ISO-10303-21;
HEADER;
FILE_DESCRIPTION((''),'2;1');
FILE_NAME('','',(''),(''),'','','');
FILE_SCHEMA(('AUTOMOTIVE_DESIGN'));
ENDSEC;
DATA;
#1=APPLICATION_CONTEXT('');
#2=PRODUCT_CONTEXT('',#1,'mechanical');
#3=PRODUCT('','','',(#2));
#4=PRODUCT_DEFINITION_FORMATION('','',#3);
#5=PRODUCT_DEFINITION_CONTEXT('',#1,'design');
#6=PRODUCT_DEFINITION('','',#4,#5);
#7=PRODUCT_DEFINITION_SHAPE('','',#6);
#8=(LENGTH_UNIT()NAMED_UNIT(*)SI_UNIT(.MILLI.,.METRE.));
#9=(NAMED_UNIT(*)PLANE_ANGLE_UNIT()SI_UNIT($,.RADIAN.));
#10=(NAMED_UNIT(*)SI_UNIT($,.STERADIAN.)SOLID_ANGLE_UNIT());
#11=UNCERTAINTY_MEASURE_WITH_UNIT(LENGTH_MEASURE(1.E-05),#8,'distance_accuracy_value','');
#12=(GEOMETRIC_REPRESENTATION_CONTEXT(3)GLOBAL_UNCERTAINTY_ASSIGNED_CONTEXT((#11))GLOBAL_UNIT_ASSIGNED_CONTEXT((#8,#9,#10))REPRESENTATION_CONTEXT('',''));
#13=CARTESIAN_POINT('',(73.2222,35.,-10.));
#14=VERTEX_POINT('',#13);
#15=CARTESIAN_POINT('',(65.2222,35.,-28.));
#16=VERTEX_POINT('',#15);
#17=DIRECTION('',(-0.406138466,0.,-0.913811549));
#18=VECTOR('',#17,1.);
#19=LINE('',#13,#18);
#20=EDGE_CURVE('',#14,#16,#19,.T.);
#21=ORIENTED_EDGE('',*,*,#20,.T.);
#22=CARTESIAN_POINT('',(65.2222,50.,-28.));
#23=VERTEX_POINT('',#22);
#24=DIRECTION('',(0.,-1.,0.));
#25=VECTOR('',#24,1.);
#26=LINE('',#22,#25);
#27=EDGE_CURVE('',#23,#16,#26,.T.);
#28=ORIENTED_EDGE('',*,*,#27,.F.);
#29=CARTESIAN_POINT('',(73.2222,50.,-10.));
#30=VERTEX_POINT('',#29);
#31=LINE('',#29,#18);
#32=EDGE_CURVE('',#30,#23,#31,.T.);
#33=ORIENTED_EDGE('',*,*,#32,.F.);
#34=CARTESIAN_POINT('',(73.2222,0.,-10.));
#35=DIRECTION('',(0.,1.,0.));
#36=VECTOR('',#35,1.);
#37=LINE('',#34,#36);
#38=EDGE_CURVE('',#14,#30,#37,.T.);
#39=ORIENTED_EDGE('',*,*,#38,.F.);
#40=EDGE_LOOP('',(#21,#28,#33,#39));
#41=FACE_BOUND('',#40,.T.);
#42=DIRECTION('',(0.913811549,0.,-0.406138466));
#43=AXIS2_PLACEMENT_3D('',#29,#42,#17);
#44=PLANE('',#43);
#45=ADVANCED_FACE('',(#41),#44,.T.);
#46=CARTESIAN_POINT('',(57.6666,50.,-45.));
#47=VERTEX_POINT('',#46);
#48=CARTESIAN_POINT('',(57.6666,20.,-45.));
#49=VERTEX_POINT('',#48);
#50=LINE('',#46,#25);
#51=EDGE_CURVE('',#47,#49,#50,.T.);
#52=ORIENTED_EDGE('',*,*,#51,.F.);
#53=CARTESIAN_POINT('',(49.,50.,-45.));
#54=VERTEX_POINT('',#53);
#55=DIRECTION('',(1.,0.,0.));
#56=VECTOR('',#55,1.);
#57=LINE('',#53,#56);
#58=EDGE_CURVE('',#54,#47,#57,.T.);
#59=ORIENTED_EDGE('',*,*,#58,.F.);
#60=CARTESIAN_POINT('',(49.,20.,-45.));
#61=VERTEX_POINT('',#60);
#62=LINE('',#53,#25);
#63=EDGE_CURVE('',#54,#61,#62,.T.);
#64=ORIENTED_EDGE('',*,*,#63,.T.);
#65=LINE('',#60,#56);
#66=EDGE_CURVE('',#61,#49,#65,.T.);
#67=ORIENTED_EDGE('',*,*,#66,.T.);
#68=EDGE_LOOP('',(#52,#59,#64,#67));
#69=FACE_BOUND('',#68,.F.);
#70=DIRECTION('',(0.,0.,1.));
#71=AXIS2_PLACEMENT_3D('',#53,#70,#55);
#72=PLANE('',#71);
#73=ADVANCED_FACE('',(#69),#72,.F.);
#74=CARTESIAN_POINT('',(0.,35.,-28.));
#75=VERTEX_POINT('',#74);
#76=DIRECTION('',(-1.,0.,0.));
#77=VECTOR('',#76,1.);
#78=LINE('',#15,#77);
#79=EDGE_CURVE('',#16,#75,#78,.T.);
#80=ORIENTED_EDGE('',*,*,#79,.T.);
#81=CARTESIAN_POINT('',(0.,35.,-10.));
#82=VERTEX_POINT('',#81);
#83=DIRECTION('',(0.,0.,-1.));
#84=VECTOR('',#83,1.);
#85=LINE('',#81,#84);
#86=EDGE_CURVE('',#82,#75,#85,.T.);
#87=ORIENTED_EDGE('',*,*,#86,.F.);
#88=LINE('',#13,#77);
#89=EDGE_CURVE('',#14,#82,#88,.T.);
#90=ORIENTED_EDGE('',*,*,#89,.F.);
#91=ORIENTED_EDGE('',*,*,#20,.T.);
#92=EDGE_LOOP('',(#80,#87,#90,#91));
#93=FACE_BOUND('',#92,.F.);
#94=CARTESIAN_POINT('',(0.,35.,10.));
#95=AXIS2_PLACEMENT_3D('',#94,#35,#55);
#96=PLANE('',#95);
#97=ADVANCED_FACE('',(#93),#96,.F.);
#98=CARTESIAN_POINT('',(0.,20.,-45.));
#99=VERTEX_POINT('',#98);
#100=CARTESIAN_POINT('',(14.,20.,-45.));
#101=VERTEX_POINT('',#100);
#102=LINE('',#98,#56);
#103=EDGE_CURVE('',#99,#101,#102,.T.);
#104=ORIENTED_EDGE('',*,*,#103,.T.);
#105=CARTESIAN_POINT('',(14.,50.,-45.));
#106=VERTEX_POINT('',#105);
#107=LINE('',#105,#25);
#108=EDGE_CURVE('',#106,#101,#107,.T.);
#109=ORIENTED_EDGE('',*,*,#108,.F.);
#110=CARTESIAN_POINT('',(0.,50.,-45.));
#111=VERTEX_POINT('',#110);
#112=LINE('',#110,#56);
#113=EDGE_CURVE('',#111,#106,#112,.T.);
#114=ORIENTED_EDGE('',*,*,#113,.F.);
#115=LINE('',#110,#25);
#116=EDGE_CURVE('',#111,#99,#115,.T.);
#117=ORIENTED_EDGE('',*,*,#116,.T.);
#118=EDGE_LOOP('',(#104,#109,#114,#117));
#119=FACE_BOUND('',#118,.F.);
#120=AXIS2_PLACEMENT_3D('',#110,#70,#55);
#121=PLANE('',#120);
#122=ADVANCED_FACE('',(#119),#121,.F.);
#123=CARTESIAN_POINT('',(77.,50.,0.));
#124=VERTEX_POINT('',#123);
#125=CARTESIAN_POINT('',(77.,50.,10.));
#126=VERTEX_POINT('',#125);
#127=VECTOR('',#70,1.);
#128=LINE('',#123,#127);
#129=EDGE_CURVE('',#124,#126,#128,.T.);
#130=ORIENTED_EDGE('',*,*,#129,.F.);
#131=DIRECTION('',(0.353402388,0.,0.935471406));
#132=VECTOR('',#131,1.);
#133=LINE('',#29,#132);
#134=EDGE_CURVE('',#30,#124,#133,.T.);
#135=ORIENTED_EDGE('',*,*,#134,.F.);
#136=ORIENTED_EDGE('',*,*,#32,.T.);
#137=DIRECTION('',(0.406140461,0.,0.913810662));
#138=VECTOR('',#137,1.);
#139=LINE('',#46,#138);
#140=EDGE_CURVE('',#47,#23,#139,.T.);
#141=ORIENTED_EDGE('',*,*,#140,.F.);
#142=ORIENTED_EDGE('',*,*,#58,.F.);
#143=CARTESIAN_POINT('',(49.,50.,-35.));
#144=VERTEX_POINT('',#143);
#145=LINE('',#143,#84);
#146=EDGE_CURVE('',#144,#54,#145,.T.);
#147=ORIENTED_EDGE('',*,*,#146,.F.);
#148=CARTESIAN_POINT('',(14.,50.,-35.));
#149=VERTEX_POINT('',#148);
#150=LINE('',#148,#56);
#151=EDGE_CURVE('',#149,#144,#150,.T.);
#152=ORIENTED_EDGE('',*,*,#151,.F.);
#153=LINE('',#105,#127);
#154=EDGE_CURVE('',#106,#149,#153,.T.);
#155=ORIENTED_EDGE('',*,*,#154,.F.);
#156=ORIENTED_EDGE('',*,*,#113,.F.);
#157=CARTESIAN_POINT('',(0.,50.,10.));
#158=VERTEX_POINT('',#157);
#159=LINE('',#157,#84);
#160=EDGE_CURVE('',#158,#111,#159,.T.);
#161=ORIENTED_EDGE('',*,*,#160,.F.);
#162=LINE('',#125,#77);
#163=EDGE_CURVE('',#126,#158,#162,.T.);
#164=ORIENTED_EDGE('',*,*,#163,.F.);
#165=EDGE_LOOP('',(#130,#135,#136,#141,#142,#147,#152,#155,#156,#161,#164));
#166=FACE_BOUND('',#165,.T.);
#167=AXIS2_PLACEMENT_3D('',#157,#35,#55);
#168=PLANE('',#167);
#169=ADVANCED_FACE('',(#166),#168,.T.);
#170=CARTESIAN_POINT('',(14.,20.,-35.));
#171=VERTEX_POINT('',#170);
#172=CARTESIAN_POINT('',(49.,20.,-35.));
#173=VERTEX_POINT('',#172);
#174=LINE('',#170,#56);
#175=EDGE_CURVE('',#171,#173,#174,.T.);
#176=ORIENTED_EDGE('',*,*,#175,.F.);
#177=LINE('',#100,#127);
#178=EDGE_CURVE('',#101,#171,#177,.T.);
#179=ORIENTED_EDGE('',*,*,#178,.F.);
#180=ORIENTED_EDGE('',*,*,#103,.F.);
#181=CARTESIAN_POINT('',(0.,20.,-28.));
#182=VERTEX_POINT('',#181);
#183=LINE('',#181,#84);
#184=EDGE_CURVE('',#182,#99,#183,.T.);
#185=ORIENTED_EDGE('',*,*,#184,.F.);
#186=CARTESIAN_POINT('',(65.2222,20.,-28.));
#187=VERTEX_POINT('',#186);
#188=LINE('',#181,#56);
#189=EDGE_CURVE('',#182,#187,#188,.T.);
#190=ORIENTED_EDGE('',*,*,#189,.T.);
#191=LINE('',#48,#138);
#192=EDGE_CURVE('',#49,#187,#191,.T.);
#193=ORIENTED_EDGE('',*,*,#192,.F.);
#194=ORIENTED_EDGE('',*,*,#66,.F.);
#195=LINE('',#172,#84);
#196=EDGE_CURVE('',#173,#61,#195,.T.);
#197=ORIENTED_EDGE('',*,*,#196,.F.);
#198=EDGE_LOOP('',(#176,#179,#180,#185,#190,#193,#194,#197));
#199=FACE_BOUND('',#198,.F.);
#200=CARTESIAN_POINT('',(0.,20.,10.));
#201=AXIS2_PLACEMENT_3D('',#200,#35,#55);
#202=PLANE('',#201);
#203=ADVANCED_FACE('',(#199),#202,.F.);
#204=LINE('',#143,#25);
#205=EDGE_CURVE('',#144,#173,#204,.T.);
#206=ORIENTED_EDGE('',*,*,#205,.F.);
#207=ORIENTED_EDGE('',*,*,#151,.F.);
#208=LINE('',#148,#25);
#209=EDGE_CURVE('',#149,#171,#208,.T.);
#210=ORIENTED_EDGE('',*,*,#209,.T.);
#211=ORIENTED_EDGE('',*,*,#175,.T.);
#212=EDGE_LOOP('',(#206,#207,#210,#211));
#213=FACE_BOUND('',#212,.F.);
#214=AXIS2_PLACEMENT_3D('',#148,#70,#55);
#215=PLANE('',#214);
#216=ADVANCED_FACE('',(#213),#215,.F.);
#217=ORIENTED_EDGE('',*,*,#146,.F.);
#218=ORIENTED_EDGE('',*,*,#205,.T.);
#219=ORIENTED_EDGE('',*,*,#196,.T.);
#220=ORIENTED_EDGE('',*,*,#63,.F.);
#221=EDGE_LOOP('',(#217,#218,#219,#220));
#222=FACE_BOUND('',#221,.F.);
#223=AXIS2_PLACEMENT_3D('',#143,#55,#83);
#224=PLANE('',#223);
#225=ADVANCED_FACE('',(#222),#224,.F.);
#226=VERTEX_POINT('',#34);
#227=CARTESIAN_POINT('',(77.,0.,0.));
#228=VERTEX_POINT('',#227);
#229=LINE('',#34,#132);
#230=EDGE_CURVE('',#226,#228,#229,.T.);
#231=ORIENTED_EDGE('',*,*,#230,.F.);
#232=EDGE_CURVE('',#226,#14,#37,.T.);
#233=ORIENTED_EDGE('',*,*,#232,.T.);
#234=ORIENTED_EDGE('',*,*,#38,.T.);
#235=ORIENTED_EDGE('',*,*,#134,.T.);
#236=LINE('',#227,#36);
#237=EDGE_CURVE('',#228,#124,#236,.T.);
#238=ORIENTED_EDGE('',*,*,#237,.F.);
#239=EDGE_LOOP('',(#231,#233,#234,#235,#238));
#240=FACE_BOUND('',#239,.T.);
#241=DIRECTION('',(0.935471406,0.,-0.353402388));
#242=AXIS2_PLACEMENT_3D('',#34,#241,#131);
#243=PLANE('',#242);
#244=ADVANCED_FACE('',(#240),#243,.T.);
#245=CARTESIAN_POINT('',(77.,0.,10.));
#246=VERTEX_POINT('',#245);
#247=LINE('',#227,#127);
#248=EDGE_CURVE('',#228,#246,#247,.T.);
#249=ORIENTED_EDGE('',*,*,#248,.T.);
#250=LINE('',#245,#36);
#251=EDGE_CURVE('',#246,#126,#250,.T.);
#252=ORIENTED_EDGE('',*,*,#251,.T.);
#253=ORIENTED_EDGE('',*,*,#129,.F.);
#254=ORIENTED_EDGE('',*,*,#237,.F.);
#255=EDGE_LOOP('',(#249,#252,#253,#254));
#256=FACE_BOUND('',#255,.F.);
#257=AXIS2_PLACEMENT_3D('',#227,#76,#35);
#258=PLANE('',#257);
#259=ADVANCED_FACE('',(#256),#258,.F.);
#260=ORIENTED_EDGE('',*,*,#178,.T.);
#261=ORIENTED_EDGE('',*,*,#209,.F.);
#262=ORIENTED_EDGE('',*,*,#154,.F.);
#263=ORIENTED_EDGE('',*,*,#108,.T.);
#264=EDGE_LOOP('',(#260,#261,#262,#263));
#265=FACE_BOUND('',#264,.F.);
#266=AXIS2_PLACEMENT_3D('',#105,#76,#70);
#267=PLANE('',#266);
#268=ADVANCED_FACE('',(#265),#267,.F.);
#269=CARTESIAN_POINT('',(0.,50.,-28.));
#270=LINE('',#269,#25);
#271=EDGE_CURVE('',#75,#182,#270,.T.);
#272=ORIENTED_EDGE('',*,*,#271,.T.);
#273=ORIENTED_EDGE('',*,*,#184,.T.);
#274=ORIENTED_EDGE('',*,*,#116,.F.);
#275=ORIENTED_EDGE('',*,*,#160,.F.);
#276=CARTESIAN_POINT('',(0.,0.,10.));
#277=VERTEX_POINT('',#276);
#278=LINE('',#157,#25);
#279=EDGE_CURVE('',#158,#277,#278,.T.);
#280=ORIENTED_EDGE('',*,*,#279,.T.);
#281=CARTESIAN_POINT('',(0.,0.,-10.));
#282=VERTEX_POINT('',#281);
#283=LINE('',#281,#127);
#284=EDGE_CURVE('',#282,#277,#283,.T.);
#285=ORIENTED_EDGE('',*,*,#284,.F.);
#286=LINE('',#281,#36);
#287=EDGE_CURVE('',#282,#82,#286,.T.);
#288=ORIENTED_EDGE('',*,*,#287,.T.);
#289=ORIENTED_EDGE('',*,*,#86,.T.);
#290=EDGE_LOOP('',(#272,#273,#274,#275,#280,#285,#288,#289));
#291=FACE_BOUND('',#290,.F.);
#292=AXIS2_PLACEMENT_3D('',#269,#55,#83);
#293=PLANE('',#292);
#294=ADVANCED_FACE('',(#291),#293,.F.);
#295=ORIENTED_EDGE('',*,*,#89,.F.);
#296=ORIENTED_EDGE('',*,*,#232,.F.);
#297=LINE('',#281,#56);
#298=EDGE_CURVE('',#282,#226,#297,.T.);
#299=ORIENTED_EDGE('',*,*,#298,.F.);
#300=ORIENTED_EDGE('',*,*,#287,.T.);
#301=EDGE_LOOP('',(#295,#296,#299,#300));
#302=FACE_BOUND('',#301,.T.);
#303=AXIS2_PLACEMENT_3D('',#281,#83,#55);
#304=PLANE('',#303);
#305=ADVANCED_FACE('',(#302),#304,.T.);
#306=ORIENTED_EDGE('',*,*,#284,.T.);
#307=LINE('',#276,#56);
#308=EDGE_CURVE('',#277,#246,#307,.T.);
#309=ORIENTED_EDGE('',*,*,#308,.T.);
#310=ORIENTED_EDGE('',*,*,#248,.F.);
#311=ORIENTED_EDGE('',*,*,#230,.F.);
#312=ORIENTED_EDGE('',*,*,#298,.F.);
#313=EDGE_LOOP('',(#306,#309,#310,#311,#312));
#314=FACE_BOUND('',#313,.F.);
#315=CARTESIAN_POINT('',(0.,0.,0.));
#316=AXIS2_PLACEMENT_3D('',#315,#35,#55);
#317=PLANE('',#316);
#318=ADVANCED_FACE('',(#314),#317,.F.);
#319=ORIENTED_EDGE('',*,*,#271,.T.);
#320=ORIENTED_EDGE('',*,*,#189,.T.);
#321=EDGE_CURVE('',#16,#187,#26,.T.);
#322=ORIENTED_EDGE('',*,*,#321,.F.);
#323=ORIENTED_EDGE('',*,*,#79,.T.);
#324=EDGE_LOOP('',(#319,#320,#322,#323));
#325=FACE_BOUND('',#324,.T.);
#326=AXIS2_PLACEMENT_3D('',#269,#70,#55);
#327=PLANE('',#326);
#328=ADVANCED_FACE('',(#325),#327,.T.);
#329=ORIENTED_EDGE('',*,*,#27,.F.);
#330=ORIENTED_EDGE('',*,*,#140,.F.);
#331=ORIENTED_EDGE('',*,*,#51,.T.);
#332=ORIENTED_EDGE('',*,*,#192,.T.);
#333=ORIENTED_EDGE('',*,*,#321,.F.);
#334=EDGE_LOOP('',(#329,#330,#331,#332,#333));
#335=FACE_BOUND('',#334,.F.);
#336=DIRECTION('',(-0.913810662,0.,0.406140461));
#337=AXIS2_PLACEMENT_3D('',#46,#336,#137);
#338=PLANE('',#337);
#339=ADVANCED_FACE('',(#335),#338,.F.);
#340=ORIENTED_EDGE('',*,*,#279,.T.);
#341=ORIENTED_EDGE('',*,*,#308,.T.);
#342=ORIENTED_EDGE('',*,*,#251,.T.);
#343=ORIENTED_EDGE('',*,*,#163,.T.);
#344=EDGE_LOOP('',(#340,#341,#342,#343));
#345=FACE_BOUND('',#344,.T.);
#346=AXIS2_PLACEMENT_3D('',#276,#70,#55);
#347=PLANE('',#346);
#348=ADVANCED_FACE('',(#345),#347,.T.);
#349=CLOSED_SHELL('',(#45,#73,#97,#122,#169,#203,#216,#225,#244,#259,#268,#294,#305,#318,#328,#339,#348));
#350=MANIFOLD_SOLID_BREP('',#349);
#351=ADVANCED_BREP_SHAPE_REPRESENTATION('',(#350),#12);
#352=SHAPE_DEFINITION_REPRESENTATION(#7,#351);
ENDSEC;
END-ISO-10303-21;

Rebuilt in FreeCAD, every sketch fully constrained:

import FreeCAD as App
import Part
import Sketcher
Q = App.Units.Quantity


def add_polygon(sketch, points):
    """Adds a closed chain of lines whose ends are joined by coincident constraints."""
    first, n = sketch.GeometryCount, len(points)
    for a, b in zip(points, points[1:] + points[:1]):
        sketch.addGeometry(Part.LineSegment(App.Vector(*a, 0), App.Vector(*b, 0)), False)
    for i in range(n):
        sketch.addConstraint(Sketcher.Constraint("Coincident", first + i, 2, first + (i + 1) % n, 1))

doc = App.newDocument("Part")
body = doc.addObject("PartDesign::Body", "Body")

# Sketch on XY plane
sketch1 = body.newObject("Sketcher::SketchObject", "Sketch")
sketch1.AttachmentSupport = (doc.getObject("XY_Plane"), [""])
sketch1.MapMode = "FlatFace"
add_polygon(sketch1, [(0, 50), (0, 0), (77, 0), (77, 50)])  # lines 0-3
sketch1.addConstraint([
    Sketcher.Constraint("Vertical", 0),
    Sketcher.Constraint("Horizontal", 1),
    Sketcher.Constraint("Vertical", 2),
    Sketcher.Constraint("Horizontal", 3),
    Sketcher.Constraint("Coincident", 0, 2, -1, 1),
    Sketcher.Constraint("DistanceX", 1, 1, 1, 2, Q("77 mm")),
    Sketcher.Constraint("DistanceY", 0, 2, 0, 1, Q("50 mm")),
])
pad1 = body.newObject("PartDesign::Pad", "Pad")
pad1.Profile = sketch1
pad1.Length = 10

# Sketch on XZ plane
sketch2 = body.newObject("Sketcher::SketchObject", "Sketch001")
sketch2.AttachmentSupport = (doc.getObject("XZ_Plane"), [""])
sketch2.MapMode = "FlatFace"
add_polygon(sketch2, [(73.2222, -10), (77, 0), (0, 0), (0, -10)])  # lines 0-3
sketch2.addConstraint([
    Sketcher.Constraint("Horizontal", 1),
    Sketcher.Constraint("Vertical", 2),
    Sketcher.Constraint("Horizontal", 3),
    Sketcher.Constraint("Coincident", 1, 2, -1, 1),
    Sketcher.Constraint("DistanceY", 2, 2, 2, 1, Q("10 mm")),
    Sketcher.Constraint("DistanceX", 1, 2, 1, 1, Q("77 mm")),
    Sketcher.Constraint("DistanceX", 3, 1, 3, 2, Q("73.2222 mm")),
])
pad2 = body.newObject("PartDesign::Pad", "Pad001")
pad2.Profile = sketch2
pad2.Length = 50
pad2.Reversed = True

# Sketch on XZ plane
sketch3 = body.newObject("Sketcher::SketchObject", "Sketch002")
sketch3.AttachmentSupport = (doc.getObject("XZ_Plane"), [""])
sketch3.MapMode = "FlatFace"
sketch3.AttachmentOffset = App.Placement(App.Vector(0, 0, -50), App.Rotation())
add_polygon(sketch3, [(0, -28), (0, -10), (73.2222, -10), (65.2222, -28)])  # lines 0-3
sketch3.addConstraint([
    Sketcher.Constraint("Vertical", 0),
    Sketcher.Constraint("Horizontal", 1),
    Sketcher.Constraint("Horizontal", 3),
    Sketcher.Constraint("PointOnObject", 0, 2, -2),
    Sketcher.Constraint("DistanceY", 0, 1, 0, 2, Q("18 mm")),
    Sketcher.Constraint("DistanceY", 0, 2, -1, 1, Q("10 mm")),
    Sketcher.Constraint("DistanceX", 2, 2, 1, 2, Q("8 mm")),
    Sketcher.Constraint("DistanceX", 1, 1, 1, 2, Q("73.2222 mm")),
])
pad3 = body.newObject("PartDesign::Pad", "Pad002")
pad3.Profile = sketch3
pad3.Length = 15

# Sketch on XZ plane
sketch4 = body.newObject("Sketcher::SketchObject", "Sketch003")
sketch4.AttachmentSupport = (doc.getObject("XZ_Plane"), [""])
sketch4.MapMode = "FlatFace"
sketch4.AttachmentOffset = App.Placement(App.Vector(0, 0, -50), App.Rotation())
add_polygon(sketch4, [(0, -45), (0, -28), (65.2222, -28), (57.6666, -45), (49, -45), (49, -35), (14, -35), (14, -45)])  # lines 0-7
sketch4.addConstraint([
    Sketcher.Constraint("Vertical", 0),
    Sketcher.Constraint("Horizontal", 1),
    Sketcher.Constraint("Horizontal", 3),
    Sketcher.Constraint("Vertical", 4),
    Sketcher.Constraint("Horizontal", 5),
    Sketcher.Constraint("Vertical", 6),
    Sketcher.Constraint("Horizontal", 7),
    Sketcher.Constraint("PointOnObject", 0, 2, -2),
    Sketcher.Constraint("Horizontal", 3, 2, 6, 2),
    Sketcher.Constraint("DistanceX", 5, 2, 5, 1, Q("35 mm")),
    Sketcher.Constraint("DistanceX", 7, 2, 7, 1, Q("14 mm")),
    Sketcher.Constraint("DistanceY", 0, 1, 0, 2, Q("17 mm")),
    Sketcher.Constraint("DistanceY", 4, 1, 4, 2, Q("10 mm")),
    Sketcher.Constraint("DistanceY", 4, 2, -1, 1, Q("35 mm")),
    Sketcher.Constraint("DistanceX", 1, 1, 1, 2, Q("65.2222 mm")),
    Sketcher.Constraint("DistanceX", 3, 2, 3, 1, Q("8.6666 mm")),
])
pad4 = body.newObject("PartDesign::Pad", "Pad003")
pad4.Profile = sketch4
pad4.Length = 30

doc.recompute()
